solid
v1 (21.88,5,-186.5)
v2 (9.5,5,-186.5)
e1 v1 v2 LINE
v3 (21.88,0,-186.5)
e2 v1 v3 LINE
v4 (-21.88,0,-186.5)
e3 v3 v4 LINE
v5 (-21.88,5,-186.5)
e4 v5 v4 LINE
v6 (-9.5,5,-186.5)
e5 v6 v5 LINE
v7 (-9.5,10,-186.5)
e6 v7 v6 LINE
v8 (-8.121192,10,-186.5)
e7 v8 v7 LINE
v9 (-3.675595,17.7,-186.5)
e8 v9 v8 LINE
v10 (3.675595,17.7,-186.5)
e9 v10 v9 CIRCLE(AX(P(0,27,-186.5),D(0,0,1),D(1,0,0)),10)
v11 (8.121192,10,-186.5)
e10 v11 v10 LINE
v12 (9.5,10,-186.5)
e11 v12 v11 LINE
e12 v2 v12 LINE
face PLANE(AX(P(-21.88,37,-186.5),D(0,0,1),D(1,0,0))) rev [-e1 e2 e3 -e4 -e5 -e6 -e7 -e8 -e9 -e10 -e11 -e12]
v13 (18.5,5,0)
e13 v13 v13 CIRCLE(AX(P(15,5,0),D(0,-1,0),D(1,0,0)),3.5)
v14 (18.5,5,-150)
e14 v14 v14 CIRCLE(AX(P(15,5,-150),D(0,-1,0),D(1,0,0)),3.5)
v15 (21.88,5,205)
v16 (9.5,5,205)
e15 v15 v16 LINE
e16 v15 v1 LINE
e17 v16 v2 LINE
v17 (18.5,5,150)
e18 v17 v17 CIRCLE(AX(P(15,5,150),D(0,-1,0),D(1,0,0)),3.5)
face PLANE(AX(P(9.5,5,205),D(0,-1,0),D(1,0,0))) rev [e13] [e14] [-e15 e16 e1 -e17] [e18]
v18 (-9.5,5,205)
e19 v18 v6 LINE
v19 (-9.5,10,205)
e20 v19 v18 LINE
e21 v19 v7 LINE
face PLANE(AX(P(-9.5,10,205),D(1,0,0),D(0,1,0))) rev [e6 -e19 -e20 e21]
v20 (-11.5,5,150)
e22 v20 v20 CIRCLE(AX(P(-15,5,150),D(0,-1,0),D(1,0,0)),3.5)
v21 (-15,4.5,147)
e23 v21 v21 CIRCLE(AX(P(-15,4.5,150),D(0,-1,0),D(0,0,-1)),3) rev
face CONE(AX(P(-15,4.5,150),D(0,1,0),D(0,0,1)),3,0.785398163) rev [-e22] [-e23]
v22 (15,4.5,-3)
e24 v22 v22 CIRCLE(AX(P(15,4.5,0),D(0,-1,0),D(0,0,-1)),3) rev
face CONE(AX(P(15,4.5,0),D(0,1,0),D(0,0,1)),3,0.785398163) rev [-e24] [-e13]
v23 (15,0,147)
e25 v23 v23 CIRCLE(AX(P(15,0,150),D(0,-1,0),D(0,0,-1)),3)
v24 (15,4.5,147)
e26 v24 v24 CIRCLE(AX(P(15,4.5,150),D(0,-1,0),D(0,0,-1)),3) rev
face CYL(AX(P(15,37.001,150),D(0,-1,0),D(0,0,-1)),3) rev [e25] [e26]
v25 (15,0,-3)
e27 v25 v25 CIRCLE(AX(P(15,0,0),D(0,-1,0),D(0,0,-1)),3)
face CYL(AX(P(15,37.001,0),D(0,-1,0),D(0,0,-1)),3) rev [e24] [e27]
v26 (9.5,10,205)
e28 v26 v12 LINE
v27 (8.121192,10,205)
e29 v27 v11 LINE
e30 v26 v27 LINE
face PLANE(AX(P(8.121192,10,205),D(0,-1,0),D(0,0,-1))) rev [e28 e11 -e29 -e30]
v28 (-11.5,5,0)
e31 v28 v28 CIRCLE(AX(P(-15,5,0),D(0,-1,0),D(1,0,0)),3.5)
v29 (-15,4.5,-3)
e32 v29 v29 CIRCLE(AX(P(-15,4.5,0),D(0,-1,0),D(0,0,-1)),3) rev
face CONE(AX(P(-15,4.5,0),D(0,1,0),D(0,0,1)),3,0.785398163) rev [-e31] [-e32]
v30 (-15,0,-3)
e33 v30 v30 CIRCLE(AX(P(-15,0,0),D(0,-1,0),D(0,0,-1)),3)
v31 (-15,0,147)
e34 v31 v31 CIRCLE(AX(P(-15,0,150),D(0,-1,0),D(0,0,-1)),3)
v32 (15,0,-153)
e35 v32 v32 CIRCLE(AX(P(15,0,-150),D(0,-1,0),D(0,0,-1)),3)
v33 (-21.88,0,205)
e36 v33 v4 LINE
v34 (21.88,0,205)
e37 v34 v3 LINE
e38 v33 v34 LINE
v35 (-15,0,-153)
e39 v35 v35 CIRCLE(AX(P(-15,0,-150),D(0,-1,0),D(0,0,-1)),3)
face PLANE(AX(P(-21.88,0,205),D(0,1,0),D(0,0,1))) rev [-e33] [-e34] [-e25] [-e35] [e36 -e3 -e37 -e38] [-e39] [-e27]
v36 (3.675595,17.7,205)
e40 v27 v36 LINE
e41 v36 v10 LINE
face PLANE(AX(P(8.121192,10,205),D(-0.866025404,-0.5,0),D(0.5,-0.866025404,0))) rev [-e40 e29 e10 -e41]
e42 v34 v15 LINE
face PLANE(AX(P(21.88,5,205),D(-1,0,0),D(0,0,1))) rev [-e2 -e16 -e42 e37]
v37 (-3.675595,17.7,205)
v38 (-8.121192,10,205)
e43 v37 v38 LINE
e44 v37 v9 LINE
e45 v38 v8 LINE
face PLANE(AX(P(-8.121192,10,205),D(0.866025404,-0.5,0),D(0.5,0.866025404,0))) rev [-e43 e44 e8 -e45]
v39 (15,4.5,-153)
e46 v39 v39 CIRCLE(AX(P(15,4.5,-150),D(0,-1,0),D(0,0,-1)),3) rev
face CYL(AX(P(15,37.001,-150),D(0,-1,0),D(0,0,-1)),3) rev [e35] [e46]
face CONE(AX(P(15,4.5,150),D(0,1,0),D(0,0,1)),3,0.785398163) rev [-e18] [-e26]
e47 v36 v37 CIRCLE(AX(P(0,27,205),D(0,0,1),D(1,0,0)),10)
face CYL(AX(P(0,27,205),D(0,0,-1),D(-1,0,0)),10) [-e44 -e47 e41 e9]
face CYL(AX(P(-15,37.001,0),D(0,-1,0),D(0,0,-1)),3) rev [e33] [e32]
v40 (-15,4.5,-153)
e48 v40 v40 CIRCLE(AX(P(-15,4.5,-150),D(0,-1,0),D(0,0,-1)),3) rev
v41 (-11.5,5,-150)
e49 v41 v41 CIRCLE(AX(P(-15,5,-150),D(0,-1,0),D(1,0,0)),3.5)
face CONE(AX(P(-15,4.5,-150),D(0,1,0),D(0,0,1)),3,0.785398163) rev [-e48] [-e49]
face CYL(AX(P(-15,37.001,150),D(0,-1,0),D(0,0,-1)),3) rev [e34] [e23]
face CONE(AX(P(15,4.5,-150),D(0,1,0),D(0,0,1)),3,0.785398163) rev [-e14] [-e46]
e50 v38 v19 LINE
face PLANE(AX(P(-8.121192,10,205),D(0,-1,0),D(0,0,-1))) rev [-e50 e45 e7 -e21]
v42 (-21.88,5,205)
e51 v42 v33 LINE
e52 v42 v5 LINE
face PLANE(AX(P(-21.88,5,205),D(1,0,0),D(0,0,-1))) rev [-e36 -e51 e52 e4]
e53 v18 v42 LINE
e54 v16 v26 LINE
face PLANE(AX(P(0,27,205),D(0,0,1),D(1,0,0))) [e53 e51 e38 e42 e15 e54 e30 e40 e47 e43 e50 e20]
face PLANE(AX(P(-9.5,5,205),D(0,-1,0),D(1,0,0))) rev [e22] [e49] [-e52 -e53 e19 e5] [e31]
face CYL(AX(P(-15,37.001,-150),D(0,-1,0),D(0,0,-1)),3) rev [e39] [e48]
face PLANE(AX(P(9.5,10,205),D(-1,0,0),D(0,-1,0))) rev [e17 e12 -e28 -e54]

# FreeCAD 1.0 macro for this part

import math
import FreeCAD as App
import Part
import Sketcher
from FreeCAD import Vector
Q = App.Units.Quantity


def edges_at(feature, points):
    """Names of the edges that pass closest to the given points."""
    edges = feature.Shape.Edges
    near = lambda p: min(range(len(edges)), key=lambda i: edges[i].distToShape(Part.Vertex(*p))[0])
    return sorted({f"Edge{near(p) + 1}" for p in points})

doc = App.newDocument("Part")
body = doc.addObject("PartDesign::Body", "Body")

# Sketch on XY plane
sketch1 = body.newObject("Sketcher::SketchObject", "Sketch")
sketch1.AttachmentSupport = (doc.getObject("XY_Plane"), [""])
sketch1.MapMode = "FlatFace"
sketch1.addGeometry(Part.LineSegment(Vector(-3.7, 17.7, 0), Vector(-8.1, 10, 0)), False)
sketch1.addGeometry(Part.LineSegment(Vector(-8.1, 10, 0), Vector(-9.5, 10, 0)), False)
sketch1.addGeometry(Part.LineSegment(Vector(-9.5, 10, 0), Vector(-9.5, 5, 0)), False)
sketch1.addGeometry(Part.LineSegment(Vector(-9.5, 5, 0), Vector(-21.9, 5, 0)), False)
sketch1.addGeometry(Part.LineSegment(Vector(-21.9, 5, 0), Vector(-21.9, 0, 0)), False)
sketch1.addGeometry(Part.LineSegment(Vector(-21.9, 0, 0), Vector(21.9, 0, 0)), False)
sketch1.addGeometry(Part.LineSegment(Vector(21.9, 0, 0), Vector(21.9, 5, 0)), False)
sketch1.addGeometry(Part.LineSegment(Vector(21.9, 5, 0), Vector(9.5, 5, 0)), False)
sketch1.addGeometry(Part.LineSegment(Vector(9.5, 5, 0), Vector(9.5, 10, 0)), False)
sketch1.addGeometry(Part.LineSegment(Vector(9.5, 10, 0), Vector(8.1, 10, 0)), False)
sketch1.addGeometry(Part.LineSegment(Vector(8.1, 10, 0), Vector(3.7, 17.7, 0)), False)
sketch1.addGeometry(Part.ArcOfCircle(Part.Circle(Vector(0, 27, 0), Vector(0, 0, 1), 10), math.radians(-68), math.radians(248)), False)
sketch1.addConstraint(Sketcher.Constraint("Coincident", 0, 2, 1, 1))
sketch1.addConstraint(Sketcher.Constraint("Coincident", 1, 2, 2, 1))
sketch1.addConstraint(Sketcher.Constraint("Coincident", 2, 2, 3, 1))
sketch1.addConstraint(Sketcher.Constraint("Coincident", 3, 2, 4, 1))
sketch1.addConstraint(Sketcher.Constraint("Coincident", 4, 2, 5, 1))
sketch1.addConstraint(Sketcher.Constraint("Coincident", 5, 2, 6, 1))
sketch1.addConstraint(Sketcher.Constraint("Coincident", 6, 2, 7, 1))
sketch1.addConstraint(Sketcher.Constraint("Coincident", 7, 2, 8, 1))
sketch1.addConstraint(Sketcher.Constraint("Coincident", 8, 2, 9, 1))
sketch1.addConstraint(Sketcher.Constraint("Coincident", 9, 2, 10, 1))
sketch1.addConstraint(Sketcher.Constraint("Coincident", 10, 2, 11, 1))
sketch1.addConstraint(Sketcher.Constraint("Coincident", 11, 2, 0, 1))
sketch1.addConstraint(Sketcher.Constraint("Horizontal", 1))
sketch1.addConstraint(Sketcher.Constraint("Vertical", 2))
sketch1.addConstraint(Sketcher.Constraint("Horizontal", 3))
sketch1.addConstraint(Sketcher.Constraint("Vertical", 4))
sketch1.addConstraint(Sketcher.Constraint("Horizontal", 5))
sketch1.addConstraint(Sketcher.Constraint("Vertical", 6))
sketch1.addConstraint(Sketcher.Constraint("Horizontal", 7))
sketch1.addConstraint(Sketcher.Constraint("Vertical", 8))
sketch1.addConstraint(Sketcher.Constraint("Horizontal", 9))
sketch1.addConstraint(Sketcher.Constraint("Symmetric", 4, 2, 5, 2, -1, 1))
sketch1.addConstraint(Sketcher.Constraint("Symmetric", 2, 2, 7, 2, -2))
sketch1.addConstraint(Sketcher.Constraint("Symmetric", 0, 2, 9, 2, -2))
sketch1.addConstraint(Sketcher.Constraint("Symmetric", 10, 2, 11, 2, -2))
sketch1.addConstraint(Sketcher.Constraint("Equal", 2, 4))
sketch1.addConstraint(Sketcher.Constraint("Radius", 11, 10.0))
sketch1.addConstraint(Sketcher.Constraint("DistanceY", 2, 2, 2, 1, 5.0))
sketch1.addConstraint(Sketcher.Constraint("Angle", 0, Q("-120 deg")))
sketch1.addConstraint(Sketcher.Constraint("DistanceY", -1, 1, 11, 3, 27.0))
sketch1.addConstraint(Sketcher.Constraint("DistanceX", 2, 2, 7, 2, 19.0))
sketch1.addConstraint(Sketcher.Constraint("DistanceX", 3, 2, 3, 1, 12.38))
sketch1.addConstraint(Sketcher.Constraint("DistanceY", -1, 1, 10, 2, 17.7))
pad1 = body.newObject("PartDesign::Pad", "Pad")
pad1.Profile = sketch1
pad1.Length = 410
pad1.Midplane = True

# Sketch on XZ plane
sketch2 = body.newObject("Sketcher::SketchObject", "Sketch001")
sketch2.AttachmentSupport = (doc.getObject("XZ_Plane"), [""])
sketch2.MapMode = "FlatFace"
sketch2.addGeometry(Part.Circle(Vector(15, 150, 0), Vector(0, 0, 1), 3), False)
sketch2.addConstraint(Sketcher.Constraint("Diameter", 0, 6.0))
sketch2.addConstraint(Sketcher.Constraint("DistanceX", -1, 1, 0, 3, 15.0))
sketch2.addConstraint(Sketcher.Constraint("DistanceY", -1, 1, 0, 3, 150.0))
pocket1 = body.newObject("PartDesign::Pocket", "Pocket")
pocket1.Profile = sketch2
pocket1.Type = "UpToFirst"

# Sketch on XZ plane
sketch3 = body.newObject("Sketcher::SketchObject", "Sketch002")
sketch3.AttachmentSupport = (doc.getObject("XZ_Plane"), [""])
sketch3.MapMode = "FlatFace"
sketch3.addGeometry(Part.Circle(Vector(-15, 150, 0), Vector(0, 0, 1), 3), False)
sketch3.addConstraint(Sketcher.Constraint("Diameter", 0, 6.0))
sketch3.addConstraint(Sketcher.Constraint("DistanceX", 0, 3, -1, 1, 15.0))
sketch3.addConstraint(Sketcher.Constraint("DistanceY", -1, 1, 0, 3, 150.0))
pocket2 = body.newObject("PartDesign::Pocket", "Pocket001")
pocket2.Profile = sketch3
pocket2.Type = "UpToFirst"

# Sketch on XZ plane
sketch4 = body.newObject("Sketcher::SketchObject", "Sketch003")
sketch4.AttachmentSupport = (doc.getObject("XZ_Plane"), [""])
sketch4.MapMode = "FlatFace"
sketch4.addGeometry(Part.Circle(Vector(-15, 0, 0), Vector(0, 0, 1), 3), False)
sketch4.addConstraint(Sketcher.Constraint("PointOnObject", 0, 3, -1))
sketch4.addConstraint(Sketcher.Constraint("Diameter", 0, 6.0))
sketch4.addConstraint(Sketcher.Constraint("DistanceX", 0, 3, -1, 1, 15.0))
pocket3 = body.newObject("PartDesign::Pocket", "Pocket002")
pocket3.Profile = sketch4
pocket3.Type = "UpToFirst"

# Sketch on XZ plane
sketch5 = body.newObject("Sketcher::SketchObject", "Sketch004")
sketch5.AttachmentSupport = (doc.getObject("XZ_Plane"), [""])
sketch5.MapMode = "FlatFace"
sketch5.addGeometry(Part.Circle(Vector(15, 0, 0), Vector(0, 0, 1), 3), False)
sketch5.addConstraint(Sketcher.Constraint("PointOnObject", 0, 3, -1))
sketch5.addConstraint(Sketcher.Constraint("Diameter", 0, 6.0))
sketch5.addConstraint(Sketcher.Constraint("DistanceX", -1, 1, 0, 3, 15.0))
pocket4 = body.newObject("PartDesign::Pocket", "Pocket003")
pocket4.Profile = sketch5
pocket4.Type = "UpToFirst"

# Sketch on XZ plane
sketch6 = body.newObject("Sketcher::SketchObject", "Sketch005")
sketch6.AttachmentSupport = (doc.getObject("XZ_Plane"), [""])
sketch6.MapMode = "FlatFace"
sketch6.addGeometry(Part.Circle(Vector(15, -150, 0), Vector(0, 0, 1), 3), False)
sketch6.addConstraint(Sketcher.Constraint("Diameter", 0, 6.0))
sketch6.addConstraint(Sketcher.Constraint("DistanceX", -1, 1, 0, 3, 15.0))
sketch6.addConstraint(Sketcher.Constraint("DistanceY", 0, 3, -1, 1, 150.0))
pocket5 = body.newObject("PartDesign::Pocket", "Pocket004")
pocket5.Profile = sketch6
pocket5.Type = "UpToFirst"

# Sketch on XZ plane
sketch7 = body.newObject("Sketcher::SketchObject", "Sketch006")
sketch7.AttachmentSupport = (doc.getObject("XZ_Plane"), [""])
sketch7.MapMode = "FlatFace"
sketch7.addGeometry(Part.Circle(Vector(-15, -150, 0), Vector(0, 0, 1), 3), False)
sketch7.addConstraint(Sketcher.Constraint("Diameter", 0, 6.0))
sketch7.addConstraint(Sketcher.Constraint("DistanceX", 0, 3, -1, 1, 15.0))
sketch7.addConstraint(Sketcher.Constraint("DistanceY", 0, 3, -1, 1, 150.0))
pocket6 = body.newObject("PartDesign::Pocket", "Pocket005")
pocket6.Profile = sketch7
pocket6.Type = "UpToFirst"
doc.recompute()

chamfer = body.newObject("PartDesign::Chamfer", "Chamfer")
chamfer.Base = (pocket6, edges_at(pocket6, [
    (-15, 5, 153),
    (-15, 5, 3),
    (15, 5, 3),
    (15, 5, -147),
    (-15, 5, -147),
    (15, 5, 153),
]))
chamfer.Size = 0.5

# Sketch on XZ plane
sketch8 = body.newObject("Sketcher::SketchObject", "Sketch007")
sketch8.AttachmentSupport = (doc.getObject("XZ_Plane"), [""])
sketch8.MapMode = "FlatFace"
sketch8.addGeometry(Part.LineSegment(Vector(-22, -186, 0), Vector(-22, -205, 0)), False)
sketch8.addGeometry(Part.LineSegment(Vector(-22, -205, 0), Vector(22, -205, 0)), False)
sketch8.addGeometry(Part.LineSegment(Vector(22, -205, 0), Vector(22, -186, 0)), False)
sketch8.addGeometry(Part.LineSegment(Vector(22, -186, 0), Vector(-22, -186, 0)), False)
sketch8.addConstraint(Sketcher.Constraint("Coincident", 0, 2, 1, 1))
sketch8.addConstraint(Sketcher.Constraint("Coincident", 1, 2, 2, 1))
sketch8.addConstraint(Sketcher.Constraint("Coincident", 2, 2, 3, 1))
sketch8.addConstraint(Sketcher.Constraint("Coincident", 3, 2, 0, 1))
sketch8.addConstraint(Sketcher.Constraint("Vertical", 0))
sketch8.addConstraint(Sketcher.Constraint("Horizontal", 1))
sketch8.addConstraint(Sketcher.Constraint("Vertical", 2))
sketch8.addConstraint(Sketcher.Constraint("Horizontal", 3))
sketch8.addConstraint(Sketcher.Constraint("DistanceY", 0, 2, 0, 1, 18.5))
sketch8.addConstraint(Sketcher.Constraint("DistanceY", 0, 2, -1, 1, 205.0))
sketch8.addConstraint(Sketcher.Constraint("DistanceX", 1, 1, 1, 2, 43.76))
sketch8.addConstraint(Sketcher.Constraint("DistanceX", 0, 2, -1, 1, 21.88))
pocket7 = body.newObject("PartDesign::Pocket", "Pocket006")
pocket7.Profile = sketch8
pocket7.Type = "ThroughAll"

doc.recompute()
